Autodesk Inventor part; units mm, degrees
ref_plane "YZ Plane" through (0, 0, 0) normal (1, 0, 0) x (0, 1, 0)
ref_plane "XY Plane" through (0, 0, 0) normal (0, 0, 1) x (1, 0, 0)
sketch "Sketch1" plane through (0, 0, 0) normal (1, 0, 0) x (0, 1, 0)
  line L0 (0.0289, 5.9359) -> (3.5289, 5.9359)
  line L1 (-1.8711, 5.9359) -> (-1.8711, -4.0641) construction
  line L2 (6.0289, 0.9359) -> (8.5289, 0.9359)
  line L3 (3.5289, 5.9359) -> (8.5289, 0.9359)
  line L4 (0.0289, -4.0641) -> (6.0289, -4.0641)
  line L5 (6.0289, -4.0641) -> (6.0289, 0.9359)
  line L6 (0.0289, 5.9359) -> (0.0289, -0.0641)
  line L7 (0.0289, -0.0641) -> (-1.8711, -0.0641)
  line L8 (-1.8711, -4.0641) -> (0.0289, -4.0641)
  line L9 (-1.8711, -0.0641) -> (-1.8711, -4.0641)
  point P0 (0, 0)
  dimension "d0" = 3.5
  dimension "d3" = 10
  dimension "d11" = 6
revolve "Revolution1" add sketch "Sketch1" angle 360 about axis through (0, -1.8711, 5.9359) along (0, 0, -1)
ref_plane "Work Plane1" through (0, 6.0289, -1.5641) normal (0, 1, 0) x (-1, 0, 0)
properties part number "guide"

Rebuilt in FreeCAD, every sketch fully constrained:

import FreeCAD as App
import Part
import Sketcher

V = App.Vector
Q = App.Units.Quantity


def add_polygon(sketch, points):
    """Adds a closed chain of lines whose ends are joined by coincident constraints."""
    first, n = sketch.GeometryCount, len(points)
    for a, b in zip(points, points[1:] + points[:1]):
        sketch.addGeometry(Part.LineSegment(App.Vector(*a, 0), App.Vector(*b, 0)), False)
    for i in range(n):
        sketch.addConstraint(Sketcher.Constraint("Coincident", first + i, 2, first + (i + 1) % n, 1))

doc = App.newDocument("Part")
params = doc.addObject("Spreadsheet::Sheet", "Params")
for row, (alias, value) in enumerate([
    ("sketch1_height", "6 mm"),
    ("sketch1_height2", "10 mm"),
    ("sketch1_width", "3.5 mm"),
    ("sketch1_height3", "5 mm"),
    ("sketch1_width2", "1.9 mm"),
    ("revolution_angle", "360 deg"),
], start=1):
    params.set(f"A{row}", alias)
    params.set(f"B{row}", "=" + value)
    params.setAlias(f"B{row}", alias)

body = doc.addObject("PartDesign::Body", "Body")

sketch1 = doc.addObject("Sketcher::SketchObject", "Sketch")
body.addObject(sketch1)
sketch1.AttachmentSupport = (doc.YZ_Plane, [""])
sketch1.MapMode = "FlatFace"
add_polygon(sketch1, [(3.5, 5.9), (0, 5.9), (0, -0.1), (-1.9, -0.1), (-1.9, -4.1), (6, -4.1), (6, 0.9), (8.5, 0.9)])
sketch1.addGeometry(Part.LineSegment(V(-1.9, 5.9, 0), V(-1.9, -4.1, 0)), True)
sketch1.addConstraint([
    Sketcher.Constraint("Horizontal", 0),
    Sketcher.Constraint("Vertical", 1),
    Sketcher.Constraint("Horizontal", 2),
    Sketcher.Constraint("Vertical", 3),
    Sketcher.Constraint("Horizontal", 4),
    Sketcher.Constraint("Vertical", 5),
    Sketcher.Constraint("Horizontal", 6),
    Sketcher.Constraint("Vertical", 8),
    Sketcher.Constraint("Coincident", 8, 2, 3, 2),
    Sketcher.Constraint("Horizontal", 7, 2, 8, 1),
    Sketcher.Constraint("DistanceY", 1, 2, 1, 1, Q("6 mm")),
    Sketcher.Constraint("DistanceY", 8, 2, 8, 1, Q("10 mm")),
    Sketcher.Constraint("DistanceX", 0, 2, 0, 1, Q("3.5 mm")),
    Sketcher.Constraint("DistanceX", 1, 2, 4, 2, Q("6 mm")),
    Sketcher.Constraint("DistanceY", 5, 1, 5, 2, Q("5 mm")),
    Sketcher.Constraint("Angle", 7, Q("135 deg")),
    Sketcher.Constraint("DistanceX", 2, 2, 2, 1, Q("1.9 mm")),
    Sketcher.Constraint("DistanceX", -1, 1, 0, 2, Q("0.029 mm")),
    Sketcher.Constraint("DistanceY", -1, 1, 0, 2, Q("5.936 mm")),
])
sketch1.setExpression("Constraints[18]", "Params.sketch1_height")
sketch1.setExpression("Constraints[19]", "Params.sketch1_height2")
sketch1.setExpression("Constraints[20]", "Params.sketch1_width")
sketch1.setExpression("Constraints[22]", "Params.sketch1_height3")
sketch1.setExpression("Constraints[24]", "Params.sketch1_width2")
revolution = doc.addObject("PartDesign::Revolution", "Revolution")
body.addObject(revolution)
revolution.Profile = sketch1
revolution.ReferenceAxis = (sketch1, ["Axis0"])
revolution.setExpression("Angle", "Params.revolution_angle")

doc.recompute()
